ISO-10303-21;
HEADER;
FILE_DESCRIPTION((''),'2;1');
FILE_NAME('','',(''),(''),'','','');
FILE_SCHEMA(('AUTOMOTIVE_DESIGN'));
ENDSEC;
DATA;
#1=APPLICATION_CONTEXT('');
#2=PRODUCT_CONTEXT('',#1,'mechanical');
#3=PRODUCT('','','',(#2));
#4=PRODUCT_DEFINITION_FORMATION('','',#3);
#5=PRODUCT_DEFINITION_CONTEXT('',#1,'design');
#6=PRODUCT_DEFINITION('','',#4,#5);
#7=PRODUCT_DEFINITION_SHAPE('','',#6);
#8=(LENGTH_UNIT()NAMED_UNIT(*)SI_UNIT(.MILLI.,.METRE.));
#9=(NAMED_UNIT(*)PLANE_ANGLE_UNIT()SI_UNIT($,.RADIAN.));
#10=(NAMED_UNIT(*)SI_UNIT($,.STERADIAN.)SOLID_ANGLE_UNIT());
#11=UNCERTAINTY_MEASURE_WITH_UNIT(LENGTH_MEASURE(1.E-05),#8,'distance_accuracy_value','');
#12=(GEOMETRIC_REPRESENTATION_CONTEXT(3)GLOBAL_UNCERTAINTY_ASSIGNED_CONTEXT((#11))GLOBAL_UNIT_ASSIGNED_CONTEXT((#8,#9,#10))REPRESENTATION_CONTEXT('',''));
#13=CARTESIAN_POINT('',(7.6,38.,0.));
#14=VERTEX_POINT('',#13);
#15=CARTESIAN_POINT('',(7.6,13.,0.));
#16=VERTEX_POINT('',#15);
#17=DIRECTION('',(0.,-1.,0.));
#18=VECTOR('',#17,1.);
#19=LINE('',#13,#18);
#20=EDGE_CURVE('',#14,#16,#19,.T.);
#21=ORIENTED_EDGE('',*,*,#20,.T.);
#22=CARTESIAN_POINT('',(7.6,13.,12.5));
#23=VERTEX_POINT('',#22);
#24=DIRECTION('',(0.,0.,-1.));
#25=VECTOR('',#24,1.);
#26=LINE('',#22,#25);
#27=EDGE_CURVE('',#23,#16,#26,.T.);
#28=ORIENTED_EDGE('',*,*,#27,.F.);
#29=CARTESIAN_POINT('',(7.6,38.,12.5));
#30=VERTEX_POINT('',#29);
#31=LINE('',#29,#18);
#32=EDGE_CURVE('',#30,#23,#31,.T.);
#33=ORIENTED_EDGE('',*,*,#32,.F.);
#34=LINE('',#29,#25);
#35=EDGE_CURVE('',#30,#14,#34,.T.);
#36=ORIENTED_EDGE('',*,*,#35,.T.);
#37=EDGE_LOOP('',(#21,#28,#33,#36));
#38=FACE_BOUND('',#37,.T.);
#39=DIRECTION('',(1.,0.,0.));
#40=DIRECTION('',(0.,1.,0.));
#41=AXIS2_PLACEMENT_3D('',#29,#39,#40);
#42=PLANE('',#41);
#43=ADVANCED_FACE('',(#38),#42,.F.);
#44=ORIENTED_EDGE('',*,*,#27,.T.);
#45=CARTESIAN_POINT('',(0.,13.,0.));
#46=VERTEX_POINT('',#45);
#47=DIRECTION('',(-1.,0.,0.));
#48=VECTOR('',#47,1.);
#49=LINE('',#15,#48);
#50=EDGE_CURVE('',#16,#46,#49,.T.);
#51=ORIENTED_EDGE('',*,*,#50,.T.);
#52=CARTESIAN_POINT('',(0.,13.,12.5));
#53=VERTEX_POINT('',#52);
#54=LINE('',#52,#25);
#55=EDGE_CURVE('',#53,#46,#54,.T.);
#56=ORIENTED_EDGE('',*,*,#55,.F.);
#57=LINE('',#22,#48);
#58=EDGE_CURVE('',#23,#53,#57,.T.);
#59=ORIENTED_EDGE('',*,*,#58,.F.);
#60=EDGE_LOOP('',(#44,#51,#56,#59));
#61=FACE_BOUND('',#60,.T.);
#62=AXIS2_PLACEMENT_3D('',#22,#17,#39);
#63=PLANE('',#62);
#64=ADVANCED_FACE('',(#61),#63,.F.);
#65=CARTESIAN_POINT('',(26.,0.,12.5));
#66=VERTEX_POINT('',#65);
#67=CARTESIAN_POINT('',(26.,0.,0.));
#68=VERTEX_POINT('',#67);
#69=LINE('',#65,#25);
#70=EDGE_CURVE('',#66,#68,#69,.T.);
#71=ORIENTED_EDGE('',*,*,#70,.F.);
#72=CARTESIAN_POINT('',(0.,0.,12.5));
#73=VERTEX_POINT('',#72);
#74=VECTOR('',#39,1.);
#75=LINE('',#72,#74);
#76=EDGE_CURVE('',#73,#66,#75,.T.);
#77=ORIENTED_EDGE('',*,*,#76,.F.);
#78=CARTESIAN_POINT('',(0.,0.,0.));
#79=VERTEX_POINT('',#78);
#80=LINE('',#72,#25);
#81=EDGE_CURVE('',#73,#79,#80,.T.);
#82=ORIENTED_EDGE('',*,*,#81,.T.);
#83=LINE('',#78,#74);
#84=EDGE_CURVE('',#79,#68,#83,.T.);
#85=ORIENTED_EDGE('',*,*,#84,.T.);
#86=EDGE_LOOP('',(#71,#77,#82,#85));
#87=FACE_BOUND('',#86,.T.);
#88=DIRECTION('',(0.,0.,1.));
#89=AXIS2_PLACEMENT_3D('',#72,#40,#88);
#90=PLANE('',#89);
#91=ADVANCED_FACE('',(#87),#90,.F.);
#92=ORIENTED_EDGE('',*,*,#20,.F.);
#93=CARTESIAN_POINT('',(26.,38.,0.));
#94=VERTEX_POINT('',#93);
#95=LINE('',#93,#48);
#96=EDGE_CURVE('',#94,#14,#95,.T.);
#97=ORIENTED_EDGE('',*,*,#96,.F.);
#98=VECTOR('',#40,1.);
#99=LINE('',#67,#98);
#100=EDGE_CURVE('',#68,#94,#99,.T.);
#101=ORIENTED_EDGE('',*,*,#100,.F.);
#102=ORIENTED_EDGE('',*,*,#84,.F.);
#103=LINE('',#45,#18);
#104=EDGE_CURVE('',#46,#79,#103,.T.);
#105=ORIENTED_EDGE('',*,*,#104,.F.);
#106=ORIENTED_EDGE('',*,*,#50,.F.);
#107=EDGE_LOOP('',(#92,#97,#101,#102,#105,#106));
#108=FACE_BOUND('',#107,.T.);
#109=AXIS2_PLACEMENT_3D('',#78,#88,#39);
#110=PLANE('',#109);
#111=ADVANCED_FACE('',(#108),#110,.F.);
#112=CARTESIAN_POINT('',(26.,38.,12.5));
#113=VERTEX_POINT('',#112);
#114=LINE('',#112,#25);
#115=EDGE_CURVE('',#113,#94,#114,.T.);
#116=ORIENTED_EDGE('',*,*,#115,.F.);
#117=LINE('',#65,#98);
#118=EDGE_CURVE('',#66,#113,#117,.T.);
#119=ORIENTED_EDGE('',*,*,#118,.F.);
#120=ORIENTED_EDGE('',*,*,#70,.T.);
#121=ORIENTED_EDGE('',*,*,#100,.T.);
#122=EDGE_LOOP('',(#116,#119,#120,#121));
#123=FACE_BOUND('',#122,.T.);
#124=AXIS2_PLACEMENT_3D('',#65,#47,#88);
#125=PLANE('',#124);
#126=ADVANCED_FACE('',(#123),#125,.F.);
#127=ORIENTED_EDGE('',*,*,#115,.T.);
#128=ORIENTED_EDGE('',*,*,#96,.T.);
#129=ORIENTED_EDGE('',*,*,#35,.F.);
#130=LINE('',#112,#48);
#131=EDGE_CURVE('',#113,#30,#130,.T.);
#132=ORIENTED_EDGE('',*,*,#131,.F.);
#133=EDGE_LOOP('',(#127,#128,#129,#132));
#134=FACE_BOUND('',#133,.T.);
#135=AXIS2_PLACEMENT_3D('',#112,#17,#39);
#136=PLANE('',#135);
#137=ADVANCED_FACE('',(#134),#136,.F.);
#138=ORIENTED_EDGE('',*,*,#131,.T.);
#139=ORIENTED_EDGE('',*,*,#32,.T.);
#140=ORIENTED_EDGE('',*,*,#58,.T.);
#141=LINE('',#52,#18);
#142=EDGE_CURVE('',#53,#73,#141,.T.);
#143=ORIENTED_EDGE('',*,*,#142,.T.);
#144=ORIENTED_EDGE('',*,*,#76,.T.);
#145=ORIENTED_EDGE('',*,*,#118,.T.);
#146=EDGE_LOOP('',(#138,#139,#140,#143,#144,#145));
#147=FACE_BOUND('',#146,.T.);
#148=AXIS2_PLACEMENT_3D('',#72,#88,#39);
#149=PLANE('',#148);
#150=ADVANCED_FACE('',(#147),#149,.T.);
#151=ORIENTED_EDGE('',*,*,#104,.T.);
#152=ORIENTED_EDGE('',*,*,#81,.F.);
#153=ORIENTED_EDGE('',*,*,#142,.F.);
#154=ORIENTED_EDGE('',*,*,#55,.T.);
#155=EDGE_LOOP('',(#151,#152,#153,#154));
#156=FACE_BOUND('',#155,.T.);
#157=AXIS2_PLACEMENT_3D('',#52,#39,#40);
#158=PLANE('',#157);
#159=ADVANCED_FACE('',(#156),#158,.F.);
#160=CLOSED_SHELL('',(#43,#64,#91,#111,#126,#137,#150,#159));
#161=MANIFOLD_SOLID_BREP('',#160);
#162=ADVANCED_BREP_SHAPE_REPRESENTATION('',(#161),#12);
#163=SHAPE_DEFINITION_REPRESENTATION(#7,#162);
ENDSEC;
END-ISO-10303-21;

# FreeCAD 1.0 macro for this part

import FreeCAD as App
import Part
import Sketcher
from FreeCAD import Vector

doc = App.newDocument("Part")
body = doc.addObject("PartDesign::Body", "Body")

sketch1 = doc.addObject("Sketcher::SketchObject", "Sketch")
body.addObject(sketch1)
sketch1.AttachmentSupport = (doc.XY_Plane, [""])
sketch1.MapMode = "FlatFace"
sketch1.addGeometry(Part.LineSegment(Vector(0, 0, 0), Vector(26, 0, 0)), False)
sketch1.addGeometry(Part.LineSegment(Vector(26, 0, 0), Vector(26, 38, 0)), False)
sketch1.addGeometry(Part.LineSegment(Vector(26, 38, 0), Vector(8, 38, 0)), False)
sketch1.addGeometry(Part.LineSegment(Vector(8, 38, 0), Vector(8, 13, 0)), False)
sketch1.addGeometry(Part.LineSegment(Vector(8, 13, 0), Vector(0, 13, 0)), False)
sketch1.addGeometry(Part.LineSegment(Vector(0, 13, 0), Vector(0, 0, 0)), False)
sketch1.addConstraint(Sketcher.Constraint("Coincident", 0, 2, 1, 1))
sketch1.addConstraint(Sketcher.Constraint("Coincident", 1, 2, 2, 1))
sketch1.addConstraint(Sketcher.Constraint("Coincident", 2, 2, 3, 1))
sketch1.addConstraint(Sketcher.Constraint("Coincident", 3, 2, 4, 1))
sketch1.addConstraint(Sketcher.Constraint("Coincident", 4, 2, 5, 1))
sketch1.addConstraint(Sketcher.Constraint("Coincident", 5, 2, 0, 1))
sketch1.addConstraint(Sketcher.Constraint("Horizontal", 0))
sketch1.addConstraint(Sketcher.Constraint("Vertical", 1))
sketch1.addConstraint(Sketcher.Constraint("Horizontal", 2))
sketch1.addConstraint(Sketcher.Constraint("Vertical", 3))
sketch1.addConstraint(Sketcher.Constraint("Horizontal", 4))
sketch1.addConstraint(Sketcher.Constraint("Vertical", 5))
sketch1.addConstraint(Sketcher.Constraint("Coincident", 5, 2, -1, 1))
sketch1.addConstraint(Sketcher.Constraint("DistanceX", 0, 1, 0, 2, 26.0))
sketch1.addConstraint(Sketcher.Constraint("DistanceY", 1, 1, 1, 2, 38.0))
sketch1.addConstraint(Sketcher.Constraint("DistanceY", 3, 2, 3, 1, 25.0))
sketch1.addConstraint(Sketcher.Constraint("DistanceX", 2, 2, 2, 1, 18.4))
pad1 = doc.addObject("PartDesign::Pad", "Pad")
body.addObject(pad1)
pad1.Profile = sketch1
pad1.Length = 12.5

doc.recompute()
